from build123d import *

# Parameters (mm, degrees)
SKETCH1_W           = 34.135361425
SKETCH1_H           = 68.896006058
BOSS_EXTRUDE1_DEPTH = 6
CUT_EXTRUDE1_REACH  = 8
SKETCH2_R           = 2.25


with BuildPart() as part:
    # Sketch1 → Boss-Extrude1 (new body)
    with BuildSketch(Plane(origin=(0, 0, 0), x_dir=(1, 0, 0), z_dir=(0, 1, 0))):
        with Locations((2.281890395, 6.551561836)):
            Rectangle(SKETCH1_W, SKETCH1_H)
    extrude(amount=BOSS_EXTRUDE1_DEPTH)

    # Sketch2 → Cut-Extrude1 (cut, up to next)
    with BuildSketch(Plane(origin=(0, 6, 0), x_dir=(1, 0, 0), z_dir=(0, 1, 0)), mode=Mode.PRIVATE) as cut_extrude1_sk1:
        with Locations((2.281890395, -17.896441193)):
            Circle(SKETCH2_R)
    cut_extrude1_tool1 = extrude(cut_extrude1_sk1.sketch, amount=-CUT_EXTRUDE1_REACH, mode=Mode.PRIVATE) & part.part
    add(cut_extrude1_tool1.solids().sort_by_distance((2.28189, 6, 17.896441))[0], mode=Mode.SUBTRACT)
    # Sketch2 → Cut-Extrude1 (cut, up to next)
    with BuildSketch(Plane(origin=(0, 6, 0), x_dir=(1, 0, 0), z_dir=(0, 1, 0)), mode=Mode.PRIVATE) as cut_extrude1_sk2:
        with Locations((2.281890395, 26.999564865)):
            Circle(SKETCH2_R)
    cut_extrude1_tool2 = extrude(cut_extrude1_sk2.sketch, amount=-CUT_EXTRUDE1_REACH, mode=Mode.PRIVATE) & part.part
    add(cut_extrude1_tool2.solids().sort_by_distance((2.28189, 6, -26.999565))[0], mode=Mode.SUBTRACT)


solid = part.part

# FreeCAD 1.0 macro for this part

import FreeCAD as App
import Part
import Sketcher
from FreeCAD import Vector
Q = App.Units.Quantity

doc = App.newDocument("Part")
body = doc.addObject("PartDesign::Body", "Body")

# Sketch on XZ plane
sketch1 = body.newObject("Sketcher::SketchObject", "Sketch")
sketch1.AttachmentSupport = (doc.getObject("XZ_Plane"), [""])
sketch1.MapMode = "FlatFace"
sketch1.addGeometry(Part.LineSegment(Vector(-15, -41, 0), Vector(-15, 28, 0)), False)
sketch1.addGeometry(Part.LineSegment(Vector(-15, 28, 0), Vector(19, 28, 0)), False)
sketch1.addGeometry(Part.LineSegment(Vector(19, 28, 0), Vector(19, -41, 0)), False)
sketch1.addGeometry(Part.LineSegment(Vector(19, -41, 0), Vector(-15, -41, 0)), False)
sketch1.addConstraint(Sketcher.Constraint("Coincident", 0, 2, 1, 1))
sketch1.addConstraint(Sketcher.Constraint("Coincident", 1, 2, 2, 1))
sketch1.addConstraint(Sketcher.Constraint("Coincident", 2, 2, 3, 1))
sketch1.addConstraint(Sketcher.Constraint("Coincident", 3, 2, 0, 1))
sketch1.addConstraint(Sketcher.Constraint("Vertical", 0))
sketch1.addConstraint(Sketcher.Constraint("Horizontal", 1))
sketch1.addConstraint(Sketcher.Constraint("Vertical", 2))
sketch1.addConstraint(Sketcher.Constraint("Horizontal", 3))
sketch1.addConstraint(Sketcher.Constraint("DistanceX", 1, 1, 1, 2, Q("34.135361 mm")))
sketch1.addConstraint(Sketcher.Constraint("DistanceY", 0, 1, 0, 2, Q("68.896006 mm")))
sketch1.addConstraint(Sketcher.Constraint("DistanceX", 0, 2, -1, 1, Q("14.78579 mm")))
sketch1.addConstraint(Sketcher.Constraint("DistanceY", -1, 1, 0, 2, Q("27.896441 mm")))
pad1 = body.newObject("PartDesign::Pad", "Pad")
pad1.Profile = sketch1
pad1.Length = 6
pad1.Reversed = True

# Sketch on XZ plane
sketch2 = body.newObject("Sketcher::SketchObject", "Sketch001")
sketch2.AttachmentSupport = (doc.getObject("XZ_Plane"), [""])
sketch2.MapMode = "FlatFace"
sketch2.AttachmentOffset = App.Placement(Vector(0, 0, -6), App.Rotation())
sketch2.addGeometry(Part.Circle(Vector(2.3, 17.9, 0), Vector(0, 0, 1), 2.2), False)
sketch2.addConstraint(Sketcher.Constraint("Diameter", 0, Q("4.5 mm")))
sketch2.addConstraint(Sketcher.Constraint("DistanceX", -1, 1, 0, 3, Q("2.28189 mm")))
sketch2.addConstraint(Sketcher.Constraint("DistanceY", -1, 1, 0, 3, Q("17.896441 mm")))
pocket1 = body.newObject("PartDesign::Pocket", "Pocket")
pocket1.Profile = sketch2
pocket1.Type = "UpToFirst"
pocket1.Reversed = True

# Sketch on XZ plane
sketch3 = body.newObject("Sketcher::SketchObject", "Sketch002")
sketch3.AttachmentSupport = (doc.getObject("XZ_Plane"), [""])
sketch3.MapMode = "FlatFace"
sketch3.AttachmentOffset = App.Placement(Vector(0, 0, -6), App.Rotation())
sketch3.addGeometry(Part.Circle(Vector(2.3, -27, 0), Vector(0, 0, 1), 2.2), False)
sketch3.addConstraint(Sketcher.Constraint("Diameter", 0, Q("4.5 mm")))
sketch3.addConstraint(Sketcher.Constraint("DistanceX", -1, 1, 0, 3, Q("2.28189 mm")))
sketch3.addConstraint(Sketcher.Constraint("DistanceY", 0, 3, -1, 1, Q("26.999565 mm")))
pocket2 = body.newObject("PartDesign::Pocket", "Pocket001")
pocket2.Profile = sketch3
pocket2.Type = "UpToFirst"
pocket2.Reversed = True

doc.recompute()
